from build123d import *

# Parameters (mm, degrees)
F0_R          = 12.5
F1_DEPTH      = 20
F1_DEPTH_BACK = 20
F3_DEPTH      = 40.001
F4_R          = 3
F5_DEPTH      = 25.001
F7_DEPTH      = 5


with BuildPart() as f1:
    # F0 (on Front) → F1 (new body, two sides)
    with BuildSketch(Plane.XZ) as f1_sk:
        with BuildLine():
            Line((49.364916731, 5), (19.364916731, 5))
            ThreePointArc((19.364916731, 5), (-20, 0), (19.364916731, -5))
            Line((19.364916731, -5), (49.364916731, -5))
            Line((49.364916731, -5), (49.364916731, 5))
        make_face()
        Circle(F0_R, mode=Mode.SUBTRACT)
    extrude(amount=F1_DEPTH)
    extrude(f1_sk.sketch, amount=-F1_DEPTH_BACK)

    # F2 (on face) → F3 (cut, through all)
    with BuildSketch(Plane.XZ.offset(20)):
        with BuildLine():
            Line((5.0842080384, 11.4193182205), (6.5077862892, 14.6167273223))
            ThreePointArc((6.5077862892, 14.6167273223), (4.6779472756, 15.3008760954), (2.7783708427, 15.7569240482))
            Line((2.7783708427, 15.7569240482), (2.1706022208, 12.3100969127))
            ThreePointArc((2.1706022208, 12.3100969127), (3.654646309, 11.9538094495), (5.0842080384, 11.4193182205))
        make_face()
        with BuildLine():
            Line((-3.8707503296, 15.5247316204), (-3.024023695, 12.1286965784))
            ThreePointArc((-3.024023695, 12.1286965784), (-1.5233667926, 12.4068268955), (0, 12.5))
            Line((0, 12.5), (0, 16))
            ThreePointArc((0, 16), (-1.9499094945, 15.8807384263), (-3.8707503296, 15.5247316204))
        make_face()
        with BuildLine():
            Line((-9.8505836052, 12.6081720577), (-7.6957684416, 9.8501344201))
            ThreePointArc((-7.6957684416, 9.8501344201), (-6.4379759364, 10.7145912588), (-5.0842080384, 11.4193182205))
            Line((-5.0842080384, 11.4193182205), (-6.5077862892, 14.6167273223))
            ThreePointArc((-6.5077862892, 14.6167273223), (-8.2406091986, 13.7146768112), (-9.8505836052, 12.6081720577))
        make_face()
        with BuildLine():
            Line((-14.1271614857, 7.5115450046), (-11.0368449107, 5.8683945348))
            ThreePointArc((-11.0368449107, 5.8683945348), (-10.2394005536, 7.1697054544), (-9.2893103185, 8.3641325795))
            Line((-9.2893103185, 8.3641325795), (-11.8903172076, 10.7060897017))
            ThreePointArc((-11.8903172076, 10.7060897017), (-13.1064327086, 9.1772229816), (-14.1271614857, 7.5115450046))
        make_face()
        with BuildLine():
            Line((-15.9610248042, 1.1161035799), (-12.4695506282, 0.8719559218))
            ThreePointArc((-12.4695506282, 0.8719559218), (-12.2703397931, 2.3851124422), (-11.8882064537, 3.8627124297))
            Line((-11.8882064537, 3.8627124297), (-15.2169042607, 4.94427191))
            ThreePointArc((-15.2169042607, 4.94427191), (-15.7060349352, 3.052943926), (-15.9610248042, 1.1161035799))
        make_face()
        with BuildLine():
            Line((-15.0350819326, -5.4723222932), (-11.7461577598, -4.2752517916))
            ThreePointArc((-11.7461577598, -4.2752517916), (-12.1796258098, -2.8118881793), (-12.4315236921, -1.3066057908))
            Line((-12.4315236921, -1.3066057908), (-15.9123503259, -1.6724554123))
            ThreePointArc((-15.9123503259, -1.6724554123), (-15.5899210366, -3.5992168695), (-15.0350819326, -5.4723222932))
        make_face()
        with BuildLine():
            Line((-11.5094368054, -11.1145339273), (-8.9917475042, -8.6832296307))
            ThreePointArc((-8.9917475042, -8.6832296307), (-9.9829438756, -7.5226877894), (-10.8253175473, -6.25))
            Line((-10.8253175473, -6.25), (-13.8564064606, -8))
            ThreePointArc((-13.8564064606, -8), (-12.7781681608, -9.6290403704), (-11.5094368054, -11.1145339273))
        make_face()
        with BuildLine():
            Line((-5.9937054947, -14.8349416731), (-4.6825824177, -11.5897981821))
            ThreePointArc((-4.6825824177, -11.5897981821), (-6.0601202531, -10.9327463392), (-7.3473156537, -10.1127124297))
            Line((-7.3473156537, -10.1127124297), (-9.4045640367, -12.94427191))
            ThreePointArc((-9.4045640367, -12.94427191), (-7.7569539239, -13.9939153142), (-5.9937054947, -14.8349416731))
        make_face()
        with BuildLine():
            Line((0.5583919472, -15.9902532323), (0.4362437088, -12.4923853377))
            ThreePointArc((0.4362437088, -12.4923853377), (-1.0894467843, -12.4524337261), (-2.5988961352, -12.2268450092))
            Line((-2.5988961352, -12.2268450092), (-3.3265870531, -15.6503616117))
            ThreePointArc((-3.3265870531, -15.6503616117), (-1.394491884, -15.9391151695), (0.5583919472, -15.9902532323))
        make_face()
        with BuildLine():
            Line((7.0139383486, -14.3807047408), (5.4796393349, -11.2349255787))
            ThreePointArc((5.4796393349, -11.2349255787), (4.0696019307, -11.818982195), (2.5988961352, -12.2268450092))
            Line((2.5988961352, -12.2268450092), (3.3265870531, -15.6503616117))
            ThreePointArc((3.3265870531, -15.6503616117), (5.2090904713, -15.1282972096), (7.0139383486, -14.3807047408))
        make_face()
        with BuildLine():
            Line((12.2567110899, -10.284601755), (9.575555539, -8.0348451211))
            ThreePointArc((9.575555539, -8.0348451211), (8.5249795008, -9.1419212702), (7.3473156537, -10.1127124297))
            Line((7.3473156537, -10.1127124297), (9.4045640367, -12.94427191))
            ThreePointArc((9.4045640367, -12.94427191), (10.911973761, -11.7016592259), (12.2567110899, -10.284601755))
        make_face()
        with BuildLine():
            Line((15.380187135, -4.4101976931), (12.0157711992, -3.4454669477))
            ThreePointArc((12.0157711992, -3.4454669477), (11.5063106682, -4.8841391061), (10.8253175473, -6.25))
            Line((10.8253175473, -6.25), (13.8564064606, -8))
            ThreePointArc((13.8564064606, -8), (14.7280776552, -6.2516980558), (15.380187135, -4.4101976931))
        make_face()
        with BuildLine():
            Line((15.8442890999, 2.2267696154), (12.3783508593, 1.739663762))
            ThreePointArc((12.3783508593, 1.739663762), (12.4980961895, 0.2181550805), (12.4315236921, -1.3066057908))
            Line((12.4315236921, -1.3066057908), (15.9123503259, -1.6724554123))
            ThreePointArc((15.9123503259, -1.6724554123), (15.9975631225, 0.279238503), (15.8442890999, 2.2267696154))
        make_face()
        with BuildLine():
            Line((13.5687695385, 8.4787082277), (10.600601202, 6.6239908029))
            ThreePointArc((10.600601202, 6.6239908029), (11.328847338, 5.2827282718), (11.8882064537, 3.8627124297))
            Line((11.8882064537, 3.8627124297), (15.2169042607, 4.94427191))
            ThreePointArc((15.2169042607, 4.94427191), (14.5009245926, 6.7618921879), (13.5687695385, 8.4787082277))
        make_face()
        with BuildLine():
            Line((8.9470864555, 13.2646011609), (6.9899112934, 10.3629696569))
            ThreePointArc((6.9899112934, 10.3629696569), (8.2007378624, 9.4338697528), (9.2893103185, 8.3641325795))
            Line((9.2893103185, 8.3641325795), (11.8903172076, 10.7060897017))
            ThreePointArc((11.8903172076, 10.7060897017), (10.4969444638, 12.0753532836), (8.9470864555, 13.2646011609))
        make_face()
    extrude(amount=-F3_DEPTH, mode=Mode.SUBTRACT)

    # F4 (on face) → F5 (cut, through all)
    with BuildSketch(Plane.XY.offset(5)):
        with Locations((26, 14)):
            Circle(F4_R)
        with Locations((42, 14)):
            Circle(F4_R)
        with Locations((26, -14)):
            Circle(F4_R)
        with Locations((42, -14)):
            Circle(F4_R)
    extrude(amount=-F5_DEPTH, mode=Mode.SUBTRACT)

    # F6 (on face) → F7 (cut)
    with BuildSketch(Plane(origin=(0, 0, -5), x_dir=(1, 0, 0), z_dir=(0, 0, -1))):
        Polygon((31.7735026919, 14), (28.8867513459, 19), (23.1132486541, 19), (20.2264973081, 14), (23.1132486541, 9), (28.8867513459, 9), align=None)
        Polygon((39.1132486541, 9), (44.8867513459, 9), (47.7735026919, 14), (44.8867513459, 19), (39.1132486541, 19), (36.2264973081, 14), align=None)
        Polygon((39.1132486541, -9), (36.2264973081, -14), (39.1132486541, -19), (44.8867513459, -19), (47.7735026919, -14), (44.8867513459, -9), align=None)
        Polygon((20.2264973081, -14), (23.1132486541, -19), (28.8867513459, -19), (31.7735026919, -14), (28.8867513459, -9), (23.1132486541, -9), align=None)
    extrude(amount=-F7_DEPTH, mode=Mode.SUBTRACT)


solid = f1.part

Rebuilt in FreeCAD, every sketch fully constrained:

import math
import FreeCAD as App
import Part
import Sketcher
from FreeCAD import Vector
Q = App.Units.Quantity


def add_polygon(sketch, points):
    """Adds a closed chain of lines whose ends are joined by coincident constraints."""
    first, n = sketch.GeometryCount, len(points)
    for a, b in zip(points, points[1:] + points[:1]):
        sketch.addGeometry(Part.LineSegment(App.Vector(*a, 0), App.Vector(*b, 0)), False)
    for i in range(n):
        sketch.addConstraint(Sketcher.Constraint("Coincident", first + i, 2, first + (i + 1) % n, 1))

doc = App.newDocument("Part")
body = doc.addObject("PartDesign::Body", "Body")

sketch1 = doc.addObject("Sketcher::SketchObject", "Sketch")
body.addObject(sketch1)
sketch1.AttachmentSupport = (doc.XZ_Plane, [""])
sketch1.MapMode = "FlatFace"
sketch1.addGeometry(Part.LineSegment(Vector(49.364917, 5, 0), Vector(19.364917, 5, 0)), False)
sketch1.addGeometry(Part.ArcOfCircle(Part.Circle(Vector(0, 0, 0), Vector(0, 0, 1), 20), math.radians(14.477512), math.radians(345.522488)), False)
sketch1.addGeometry(Part.LineSegment(Vector(19.364917, -5, 0), Vector(49.364917, -5, 0)), False)
sketch1.addGeometry(Part.LineSegment(Vector(49.364917, -5, 0), Vector(49.364917, 5, 0)), False)
sketch1.addGeometry(Part.Circle(Vector(0, 0, 0), Vector(0, 0, 1), 12.5), False)
sketch1.addConstraint(Sketcher.Constraint("Coincident", 0, 2, 1, 1))
sketch1.addConstraint(Sketcher.Constraint("Coincident", 1, 2, 2, 1))
sketch1.addConstraint(Sketcher.Constraint("Coincident", 2, 2, 3, 1))
sketch1.addConstraint(Sketcher.Constraint("Coincident", 3, 2, 0, 1))
sketch1.addConstraint(Sketcher.Constraint("Horizontal", 0))
sketch1.addConstraint(Sketcher.Constraint("Horizontal", 2))
sketch1.addConstraint(Sketcher.Constraint("Vertical", 3))
sketch1.addConstraint(Sketcher.Constraint("Coincident", 1, 3, -1, 1))
sketch1.addConstraint(Sketcher.Constraint("Coincident", 4, 3, -1, 1))
sketch1.addConstraint(Sketcher.Constraint("Vertical", 0, 2, 1, 2))
sketch1.addConstraint(Sketcher.Constraint("Diameter", 4, Q("25 mm")))
sketch1.addConstraint(Sketcher.Constraint("Radius", 1, Q("20 mm")))
sketch1.addConstraint(Sketcher.Constraint("DistanceX", 0, 2, 0, 1, Q("30 mm")))
sketch1.addConstraint(Sketcher.Constraint("DistanceY", 3, 1, 3, 2, Q("10 mm")))
pad1 = doc.addObject("PartDesign::Pad", "Pad")
body.addObject(pad1)
pad1.Profile = sketch1
pad1.Type = "TwoLengths"
pad1.Length = 20
pad1.Length2 = 20

sketch2 = doc.addObject("Sketcher::SketchObject", "Sketch001")
body.addObject(sketch2)
sketch2.AttachmentSupport = (doc.XZ_Plane, [""])
sketch2.MapMode = "FlatFace"
sketch2.AttachmentOffset = App.Placement(Vector(0, 0, 20), App.Rotation())
sketch2.addGeometry(Part.LineSegment(Vector(5.084208, 11.419318, 0), Vector(6.507786, 14.616727, 0)), False)
sketch2.addGeometry(Part.ArcOfCircle(Part.Circle(Vector(0, 0, 0), Vector(0, 0, 1), 16), math.radians(66), math.radians(80)), False)
sketch2.addGeometry(Part.LineSegment(Vector(2.778371, 15.756924, 0), Vector(2.170602, 12.310097, 0)), False)
sketch2.addGeometry(Part.ArcOfCircle(Part.Circle(Vector(0, 0, 0), Vector(0, 0, 1), 12.5), math.radians(66), math.radians(80)), False)
sketch2.addGeometry(Part.LineSegment(Vector(-3.87075, 15.524732, 0), Vector(-3.024024, 12.128697, 0)), False)
sketch2.addGeometry(Part.ArcOfCircle(Part.Circle(Vector(0, 0, 0), Vector(0, 0, 1), 12.5), math.radians(90), math.radians(104)), False)
sketch2.addGeometry(Part.LineSegment(Vector(0, 12.5, 0), Vector(0, 16, 0)), False)
sketch2.addGeometry(Part.ArcOfCircle(Part.Circle(Vector(0, 0, 0), Vector(0, 0, 1), 16), math.radians(90), math.radians(104)), False)
sketch2.addGeometry(Part.LineSegment(Vector(-9.850584, 12.608172, 0), Vector(-7.695768, 9.850134, 0)), False)
sketch2.addGeometry(Part.ArcOfCircle(Part.Circle(Vector(0, 0, 0), Vector(0, 0, 1), 12.5), math.radians(114), math.radians(128)), False)
sketch2.addGeometry(Part.LineSegment(Vector(-5.084208, 11.419318, 0), Vector(-6.507786, 14.616727, 0)), False)
sketch2.addGeometry(Part.ArcOfCircle(Part.Circle(Vector(0, 0, 0), Vector(0, 0, 1), 16), math.radians(114), math.radians(128)), False)
sketch2.addGeometry(Part.LineSegment(Vector(-14.127161, 7.511545, 0), Vector(-11.036845, 5.868395, 0)), False)
sketch2.addGeometry(Part.ArcOfCircle(Part.Circle(Vector(0, 0, 0), Vector(0, 0, 1), 12.5), math.radians(138), math.radians(152)), False)
sketch2.addGeometry(Part.LineSegment(Vector(-9.28931, 8.364133, 0), Vector(-11.890317, 10.70609, 0)), False)
sketch2.addGeometry(Part.ArcOfCircle(Part.Circle(Vector(0, 0, 0), Vector(0, 0, 1), 16), math.radians(138), math.radians(152)), False)
sketch2.addGeometry(Part.LineSegment(Vector(-15.961025, 1.116104, 0), Vector(-12.469551, 0.871956, 0)), False)
sketch2.addGeometry(Part.ArcOfCircle(Part.Circle(Vector(0, 0, 0), Vector(0, 0, 1), 12.5), math.radians(162), math.radians(176)), False)
sketch2.addGeometry(Part.LineSegment(Vector(-11.888206, 3.862712, 0), Vector(-15.216904, 4.944272, 0)), False)
sketch2.addGeometry(Part.ArcOfCircle(Part.Circle(Vector(0, 0, 0), Vector(0, 0, 1), 16), math.radians(162), math.radians(176)), False)
sketch2.addGeometry(Part.LineSegment(Vector(-15.035082, -5.472322, 0), Vector(-11.746158, -4.275252, 0)), False)
sketch2.addGeometry(Part.ArcOfCircle(Part.Circle(Vector(0, 0, 0), Vector(0, 0, 1), 12.5), math.radians(-174), math.radians(-160)), False)
sketch2.addGeometry(Part.LineSegment(Vector(-12.431524, -1.306606, 0), Vector(-15.91235, -1.672455, 0)), False)
sketch2.addGeometry(Part.ArcOfCircle(Part.Circle(Vector(0, 0, 0), Vector(0, 0, 1), 16), math.radians(-174), math.radians(-160)), False)
sketch2.addGeometry(Part.LineSegment(Vector(-11.509437, -11.114534, 0), Vector(-8.991748, -8.68323, 0)), False)
sketch2.addGeometry(Part.ArcOfCircle(Part.Circle(Vector(0, 0, 0), Vector(0, 0, 1), 12.5), math.radians(-150), math.radians(-136)), False)
sketch2.addGeometry(Part.LineSegment(Vector(-10.825318, -6.25, 0), Vector(-13.856406, -8, 0)), False)
sketch2.addGeometry(Part.ArcOfCircle(Part.Circle(Vector(0, 0, 0), Vector(0, 0, 1), 16), math.radians(-150), math.radians(-136)), False)
sketch2.addGeometry(Part.LineSegment(Vector(-5.993705, -14.834942, 0), Vector(-4.682582, -11.589798, 0)), False)
sketch2.addGeometry(Part.ArcOfCircle(Part.Circle(Vector(0, 0, 0), Vector(0, 0, 1), 12.5), math.radians(-126), math.radians(-112)), False)
sketch2.addGeometry(Part.LineSegment(Vector(-7.347316, -10.112712, 0), Vector(-9.404564, -12.944272, 0)), False)
sketch2.addGeometry(Part.ArcOfCircle(Part.Circle(Vector(0, 0, 0), Vector(0, 0, 1), 16), math.radians(-126), math.radians(-112)), False)
sketch2.addGeometry(Part.LineSegment(Vector(0.558392, -15.990253, 0), Vector(0.436244, -12.492385, 0)), False)
sketch2.addGeometry(Part.ArcOfCircle(Part.Circle(Vector(0, 0, 0), Vector(0, 0, 1), 12.5), math.radians(-102), math.radians(-88)), False)
sketch2.addGeometry(Part.LineSegment(Vector(-2.598896, -12.226845, 0), Vector(-3.326587, -15.650362, 0)), False)
sketch2.addGeometry(Part.ArcOfCircle(Part.Circle(Vector(0, 0, 0), Vector(0, 0, 1), 16), math.radians(-102), math.radians(-88)), False)
sketch2.addGeometry(Part.LineSegment(Vector(7.013938, -14.380705, 0), Vector(5.479639, -11.234926, 0)), False)
sketch2.addGeometry(Part.ArcOfCircle(Part.Circle(Vector(0, 0, 0), Vector(0, 0, 1), 12.5), math.radians(-78), math.radians(-64)), False)
sketch2.addGeometry(Part.LineSegment(Vector(2.598896, -12.226845, 0), Vector(3.326587, -15.650362, 0)), False)
sketch2.addGeometry(Part.ArcOfCircle(Part.Circle(Vector(0, 0, 0), Vector(0, 0, 1), 16), math.radians(-78), math.radians(-64)), False)
sketch2.addGeometry(Part.LineSegment(Vector(12.256711, -10.284602, 0), Vector(9.575556, -8.034845, 0)), False)
sketch2.addGeometry(Part.ArcOfCircle(Part.Circle(Vector(0, 0, 0), Vector(0, 0, 1), 12.5), math.radians(-54), math.radians(-40)), False)
sketch2.addGeometry(Part.LineSegment(Vector(7.347316, -10.112712, 0), Vector(9.404564, -12.944272, 0)), False)
sketch2.addGeometry(Part.ArcOfCircle(Part.Circle(Vector(0, 0, 0), Vector(0, 0, 1), 16), math.radians(-54), math.radians(-40)), False)
sketch2.addGeometry(Part.LineSegment(Vector(15.380187, -4.410198, 0), Vector(12.015771, -3.445467, 0)), False)
sketch2.addGeometry(Part.ArcOfCircle(Part.Circle(Vector(0, 0, 0), Vector(0, 0, 1), 12.5), math.radians(-30), math.radians(-16)), False)
sketch2.addGeometry(Part.LineSegment(Vector(10.825318, -6.25, 0), Vector(13.856406, -8, 0)), False)
sketch2.addGeometry(Part.ArcOfCircle(Part.Circle(Vector(0, 0, 0), Vector(0, 0, 1), 16), math.radians(-30), math.radians(-16)), False)
sketch2.addGeometry(Part.LineSegment(Vector(15.844289, 2.22677, 0), Vector(12.378351, 1.739664, 0)), False)
sketch2.addGeometry(Part.ArcOfCircle(Part.Circle(Vector(0, 0, 0), Vector(0, 0, 1), 12.5), math.radians(-6), math.radians(8)), False)
sketch2.addGeometry(Part.LineSegment(Vector(12.431524, -1.306606, 0), Vector(15.91235, -1.672455, 0)), False)
sketch2.addGeometry(Part.ArcOfCircle(Part.Circle(Vector(0, 0, 0), Vector(0, 0, 1), 16), math.radians(-6), math.radians(8)), False)
sketch2.addGeometry(Part.LineSegment(Vector(13.56877, 8.478708, 0), Vector(10.600601, 6.623991, 0)), False)
sketch2.addGeometry(Part.ArcOfCircle(Part.Circle(Vector(0, 0, 0), Vector(0, 0, 1), 12.5), math.radians(18), math.radians(32)), False)
sketch2.addGeometry(Part.LineSegment(Vector(11.888206, 3.862712, 0), Vector(15.216904, 4.944272, 0)), False)
sketch2.addGeometry(Part.ArcOfCircle(Part.Circle(Vector(0, 0, 0), Vector(0, 0, 1), 16), math.radians(18), math.radians(32)), False)
sketch2.addGeometry(Part.LineSegment(Vector(8.947086, 13.264601, 0), Vector(6.989911, 10.36297, 0)), False)
sketch2.addGeometry(Part.ArcOfCircle(Part.Circle(Vector(0, 0, 0), Vector(0, 0, 1), 12.5), math.radians(42), math.radians(56)), False)
sketch2.addGeometry(Part.LineSegment(Vector(9.28931, 8.364133, 0), Vector(11.890317, 10.70609, 0)), False)
sketch2.addGeometry(Part.ArcOfCircle(Part.Circle(Vector(0, 0, 0), Vector(0, 0, 1), 16), math.radians(42), math.radians(56)), False)
sketch2.addConstraint(Sketcher.Constraint("Coincident", 0, 2, 1, 1))
sketch2.addConstraint(Sketcher.Constraint("Coincident", 1, 2, 2, 1))
sketch2.addConstraint(Sketcher.Constraint("Coincident", 2, 2, 3, 2))
sketch2.addConstraint(Sketcher.Constraint("Coincident", 3, 1, 0, 1))
sketch2.addConstraint(Sketcher.Constraint("Coincident", 4, 2, 5, 2))
sketch2.addConstraint(Sketcher.Constraint("Coincident", 5, 1, 6, 1))
sketch2.addConstraint(Sketcher.Constraint("Coincident", 6, 2, 7, 1))
sketch2.addConstraint(Sketcher.Constraint("Coincident", 7, 2, 4, 1))
sketch2.addConstraint(Sketcher.Constraint("Coincident", 8, 2, 9, 2))
sketch2.addConstraint(Sketcher.Constraint("Coincident", 9, 1, 10, 1))
sketch2.addConstraint(Sketcher.Constraint("Coincident", 10, 2, 11, 1))
sketch2.addConstraint(Sketcher.Constraint("Coincident", 11, 2, 8, 1))
sketch2.addConstraint(Sketcher.Constraint("Coincident", 12, 2, 13, 2))
sketch2.addConstraint(Sketcher.Constraint("Coincident", 13, 1, 14, 1))
sketch2.addConstraint(Sketcher.Constraint("Coincident", 14, 2, 15, 1))
sketch2.addConstraint(Sketcher.Constraint("Coincident", 15, 2, 12, 1))
sketch2.addConstraint(Sketcher.Constraint("Coincident", 16, 2, 17, 2))
sketch2.addConstraint(Sketcher.Constraint("Coincident", 17, 1, 18, 1))
sketch2.addConstraint(Sketcher.Constraint("Coincident", 18, 2, 19, 1))
sketch2.addConstraint(Sketcher.Constraint("Coincident", 19, 2, 16, 1))
sketch2.addConstraint(Sketcher.Constraint("Coincident", 20, 2, 21, 2))
sketch2.addConstraint(Sketcher.Constraint("Coincident", 21, 1, 22, 1))
sketch2.addConstraint(Sketcher.Constraint("Coincident", 22, 2, 23, 1))
sketch2.addConstraint(Sketcher.Constraint("Coincident", 23, 2, 20, 1))
sketch2.addConstraint(Sketcher.Constraint("Coincident", 24, 2, 25, 2))
sketch2.addConstraint(Sketcher.Constraint("Coincident", 25, 1, 26, 1))
sketch2.addConstraint(Sketcher.Constraint("Coincident", 26, 2, 27, 1))
sketch2.addConstraint(Sketcher.Constraint("Coincident", 27, 2, 24, 1))
sketch2.addConstraint(Sketcher.Constraint("Coincident", 28, 2, 29, 2))
sketch2.addConstraint(Sketcher.Constraint("Coincident", 29, 1, 30, 1))
sketch2.addConstraint(Sketcher.Constraint("Coincident", 30, 2, 31, 1))
sketch2.addConstraint(Sketcher.Constraint("Coincident", 31, 2, 28, 1))
sketch2.addConstraint(Sketcher.Constraint("Coincident", 32, 2, 33, 2))
sketch2.addConstraint(Sketcher.Constraint("Coincident", 33, 1, 34, 1))
sketch2.addConstraint(Sketcher.Constraint("Coincident", 34, 2, 35, 1))
sketch2.addConstraint(Sketcher.Constraint("Coincident", 35, 2, 32, 1))
sketch2.addConstraint(Sketcher.Constraint("Coincident", 36, 2, 37, 2))
sketch2.addConstraint(Sketcher.Constraint("Coincident", 37, 1, 38, 1))
sketch2.addConstraint(Sketcher.Constraint("Coincident", 38, 2, 39, 1))
sketch2.addConstraint(Sketcher.Constraint("Coincident", 39, 2, 36, 1))
sketch2.addConstraint(Sketcher.Constraint("Coincident", 40, 2, 41, 2))
sketch2.addConstraint(Sketcher.Constraint("Coincident", 41, 1, 42, 1))
sketch2.addConstraint(Sketcher.Constraint("Coincident", 42, 2, 43, 1))
sketch2.addConstraint(Sketcher.Constraint("Coincident", 43, 2, 40, 1))
sketch2.addConstraint(Sketcher.Constraint("Coincident", 44, 2, 45, 2))
sketch2.addConstraint(Sketcher.Constraint("Coincident", 45, 1, 46, 1))
sketch2.addConstraint(Sketcher.Constraint("Coincident", 46, 2, 47, 1))
sketch2.addConstraint(Sketcher.Constraint("Coincident", 47, 2, 44, 1))
sketch2.addConstraint(Sketcher.Constraint("Coincident", 48, 2, 49, 2))
sketch2.addConstraint(Sketcher.Constraint("Coincident", 49, 1, 50, 1))
sketch2.addConstraint(Sketcher.Constraint("Coincident", 50, 2, 51, 1))
sketch2.addConstraint(Sketcher.Constraint("Coincident", 51, 2, 48, 1))
sketch2.addConstraint(Sketcher.Constraint("Coincident", 52, 2, 53, 2))
sketch2.addConstraint(Sketcher.Constraint("Coincident", 53, 1, 54, 1))
sketch2.addConstraint(Sketcher.Constraint("Coincident", 54, 2, 55, 1))
sketch2.addConstraint(Sketcher.Constraint("Coincident", 55, 2, 52, 1))
sketch2.addConstraint(Sketcher.Constraint("Coincident", 56, 2, 57, 2))
sketch2.addConstraint(Sketcher.Constraint("Coincident", 57, 1, 58, 1))
sketch2.addConstraint(Sketcher.Constraint("Coincident", 58, 2, 59, 1))
sketch2.addConstraint(Sketcher.Constraint("Coincident", 59, 2, 56, 1))
sketch2.addConstraint(Sketcher.Constraint("Vertical", 6))
sketch2.addConstraint(Sketcher.Constraint("Coincident", 1, 3, -1, 1))
sketch2.addConstraint(Sketcher.Constraint("Coincident", 3, 3, -1, 1))
sketch2.addConstraint(Sketcher.Constraint("Coincident", 5, 3, -1, 1))
sketch2.addConstraint(Sketcher.Constraint("Coincident", 7, 3, -1, 1))
sketch2.addConstraint(Sketcher.Constraint("Coincident", 9, 3, -1, 1))
sketch2.addConstraint(Sketcher.Constraint("Coincident", 11, 3, -1, 1))
sketch2.addConstraint(Sketcher.Constraint("Coincident", 13, 3, -1, 1))
sketch2.addConstraint(Sketcher.Constraint("Coincident", 15, 3, -1, 1))
sketch2.addConstraint(Sketcher.Constraint("Coincident", 17, 3, -1, 1))
sketch2.addConstraint(Sketcher.Constraint("Coincident", 19, 3, -1, 1))
sketch2.addConstraint(Sketcher.Constraint("Coincident", 21, 3, -1, 1))
sketch2.addConstraint(Sketcher.Constraint("Coincident", 23, 3, -1, 1))
sketch2.addConstraint(Sketcher.Constraint("Coincident", 25, 3, -1, 1))
sketch2.addConstraint(Sketcher.Constraint("Coincident", 27, 3, -1, 1))
sketch2.addConstraint(Sketcher.Constraint("Coincident", 29, 3, -1, 1))
sketch2.addConstraint(Sketcher.Constraint("Coincident", 31, 3, -1, 1))
sketch2.addConstraint(Sketcher.Constraint("Coincident", 33, 3, -1, 1))
sketch2.addConstraint(Sketcher.Constraint("Coincident", 35, 3, -1, 1))
sketch2.addConstraint(Sketcher.Constraint("Coincident", 37, 3, -1, 1))
sketch2.addConstraint(Sketcher.Constraint("Coincident", 39, 3, -1, 1))
sketch2.addConstraint(Sketcher.Constraint("Coincident", 41, 3, -1, 1))
sketch2.addConstraint(Sketcher.Constraint("Coincident", 43, 3, -1, 1))
sketch2.addConstraint(Sketcher.Constraint("Coincident", 45, 3, -1, 1))
sketch2.addConstraint(Sketcher.Constraint("Coincident", 47, 3, -1, 1))
sketch2.addConstraint(Sketcher.Constraint("Coincident", 49, 3, -1, 1))
sketch2.addConstraint(Sketcher.Constraint("Coincident", 51, 3, -1, 1))
sketch2.addConstraint(Sketcher.Constraint("Coincident", 53, 3, -1, 1))
sketch2.addConstraint(Sketcher.Constraint("Coincident", 55, 3, -1, 1))
sketch2.addConstraint(Sketcher.Constraint("Coincident", 57, 3, -1, 1))
sketch2.addConstraint(Sketcher.Constraint("Coincident", 59, 3, -1, 1))
sketch2.addConstraint(Sketcher.Constraint("Equal", 3, 5))
sketch2.addConstraint(Sketcher.Constraint("Equal", 1, 7))
sketch2.addConstraint(Sketcher.Constraint("Equal", 5, 9))
sketch2.addConstraint(Sketcher.Constraint("Equal", 7, 11))
sketch2.addConstraint(Sketcher.Constraint("Equal", 9, 13))
sketch2.addConstraint(Sketcher.Constraint("Equal", 11, 15))
sketch2.addConstraint(Sketcher.Constraint("Equal", 13, 17))
sketch2.addConstraint(Sketcher.Constraint("Equal", 15, 19))
sketch2.addConstraint(Sketcher.Constraint("Equal", 17, 21))
sketch2.addConstraint(Sketcher.Constraint("Equal", 19, 23))
sketch2.addConstraint(Sketcher.Constraint("Equal", 21, 25))
sketch2.addConstraint(Sketcher.Constraint("Equal", 23, 27))
sketch2.addConstraint(Sketcher.Constraint("Equal", 25, 29))
sketch2.addConstraint(Sketcher.Constraint("Equal", 27, 31))
sketch2.addConstraint(Sketcher.Constraint("Equal", 29, 33))
sketch2.addConstraint(Sketcher.Constraint("Equal", 31, 35))
sketch2.addConstraint(Sketcher.Constraint("Equal", 33, 37))
sketch2.addConstraint(Sketcher.Constraint("Equal", 35, 39))
sketch2.addConstraint(Sketcher.Constraint("Equal", 37, 41))
sketch2.addConstraint(Sketcher.Constraint("Equal", 39, 43))
sketch2.addConstraint(Sketcher.Constraint("Equal", 41, 45))
sketch2.addConstraint(Sketcher.Constraint("Equal", 43, 47))
sketch2.addConstraint(Sketcher.Constraint("Equal", 45, 49))
sketch2.addConstraint(Sketcher.Constraint("Equal", 47, 51))
sketch2.addConstraint(Sketcher.Constraint("Equal", 49, 53))
sketch2.addConstraint(Sketcher.Constraint("Equal", 51, 55))
sketch2.addConstraint(Sketcher.Constraint("Equal", 53, 57))
sketch2.addConstraint(Sketcher.Constraint("Equal", 55, 59))
sketch2.addConstraint(Sketcher.Constraint("PointOnObject", 5, 1, -2))
sketch2.addConstraint(Sketcher.Constraint("Horizontal", 3, 1, 9, 1))
sketch2.addConstraint(Sketcher.Constraint("Horizontal", 0, 2, 10, 2))
sketch2.addConstraint(Sketcher.Constraint("Horizontal", 33, 1, 37, 1))
sketch2.addConstraint(Sketcher.Constraint("Horizontal", 34, 2, 38, 2))
sketch2.addConstraint(Sketcher.Constraint("Horizontal", 29, 1, 41, 1))
sketch2.addConstraint(Sketcher.Constraint("Horizontal", 30, 2, 42, 2))
sketch2.addConstraint(Sketcher.Constraint("Horizontal", 25, 1, 45, 1))
sketch2.addConstraint(Sketcher.Constraint("Horizontal", 26, 2, 46, 2))
sketch2.addConstraint(Sketcher.Constraint("Horizontal", 21, 1, 49, 1))
sketch2.addConstraint(Sketcher.Constraint("Horizontal", 22, 2, 50, 2))
sketch2.addConstraint(Sketcher.Constraint("Horizontal", 17, 1, 53, 1))
sketch2.addConstraint(Sketcher.Constraint("Horizontal", 18, 2, 54, 2))
sketch2.addConstraint(Sketcher.Constraint("Horizontal", 13, 1, 57, 1))
sketch2.addConstraint(Sketcher.Constraint("Horizontal", 14, 2, 58, 2))
sketch2.addConstraint(Sketcher.Constraint("Radius", 1, Q("16 mm")))
sketch2.addConstraint(Sketcher.Constraint("Radius", 3, Q("12.5 mm")))
sketch2.addConstraint(Sketcher.Constraint("Angle", 0, Q("66 deg")))
sketch2.addConstraint(Sketcher.Constraint("Angle", 2, Q("-100 deg")))
sketch2.addConstraint(Sketcher.Constraint("Angle", 4, Q("-76 deg")))
sketch2.addConstraint(Sketcher.Constraint("Angle", 8, Q("-52 deg")))
sketch2.addConstraint(Sketcher.Constraint("Angle", 12, Q("-28 deg")))
sketch2.addConstraint(Sketcher.Constraint("Angle", 14, Q("138 deg")))
sketch2.addConstraint(Sketcher.Constraint("Angle", 16, Q("-4 deg")))
sketch2.addConstraint(Sketcher.Constraint("Angle", 18, Q("162 deg")))
sketch2.addConstraint(Sketcher.Constraint("Angle", 20, Q("20 deg")))
sketch2.addConstraint(Sketcher.Constraint("Angle", 22, Q("-174 deg")))
sketch2.addConstraint(Sketcher.Constraint("Angle", 24, Q("44 deg")))
sketch2.addConstraint(Sketcher.Constraint("Angle", 26, Q("-150 deg")))
sketch2.addConstraint(Sketcher.Constraint("Angle", 28, Q("68 deg")))
sketch2.addConstraint(Sketcher.Constraint("Angle", 30, Q("-126 deg")))
sketch2.addConstraint(Sketcher.Constraint("Angle", 32, Q("92 deg")))
sketch2.addConstraint(Sketcher.Constraint("Angle", 34, Q("-102 deg")))
sketch2.addConstraint(Sketcher.Constraint("Angle", 36, Q("116 deg")))
sketch2.addConstraint(Sketcher.Constraint("Angle", 40, Q("140 deg")))
sketch2.addConstraint(Sketcher.Constraint("Angle", 44, Q("164 deg")))
sketch2.addConstraint(Sketcher.Constraint("Angle", 48, Q("-172 deg")))
sketch2.addConstraint(Sketcher.Constraint("Angle", 52, Q("-148 deg")))
sketch2.addConstraint(Sketcher.Constraint("Angle", 56, Q("-124 deg")))
sketch2.addConstraint(Sketcher.Constraint("DistanceY", 26, 2, -1, 1, Q("8 mm")))
sketch2.addConstraint(Sketcher.Constraint("DistanceY", 28, 2, -1, 1, Q("11.589798 mm")))
sketch2.addConstraint(Sketcher.Constraint("DistanceY", 43, 2, -1, 1, Q("10.284602 mm")))
sketch2.addConstraint(Sketcher.Constraint("DistanceX", -1, 1, 52, 2, Q("10.600601 mm")))
sketch2.addConstraint(Sketcher.Constraint("DistanceY", -1, 1, 59, 2, Q("13.264601 mm")))
sketch2.addConstraint(Sketcher.Constraint("DistanceX", -1, 1, 1, 2, Q("2.778371 mm")))
sketch2.addConstraint(Sketcher.Constraint("DistanceX", -1, 1, 3, 1, Q("5.084208 mm")))
sketch2.addConstraint(Sketcher.Constraint("DistanceX", 7, 2, -1, 1, Q("3.87075 mm")))
sketch2.addConstraint(Sketcher.Constraint("DistanceX", 8, 2, -1, 1, Q("7.695768 mm")))
sketch2.addConstraint(Sketcher.Constraint("DistanceX", 13, 1, -1, 1, Q("9.28931 mm")))
sketch2.addConstraint(Sketcher.Constraint("DistanceX", 15, 2, -1, 1, Q("14.127161 mm")))
sketch2.addConstraint(Sketcher.Constraint("DistanceX", 16, 2, -1, 1, Q("12.469551 mm")))
sketch2.addConstraint(Sketcher.Constraint("DistanceY", -1, 1, 18, 2, Q("4.944272 mm")))
sketch2.addConstraint(Sketcher.Constraint("DistanceY", 20, 2, -1, 1, Q("4.275252 mm")))
sketch2.addConstraint(Sketcher.Constraint("DistanceX", 22, 2, -1, 1, Q("15.91235 mm")))
sketch2.addConstraint(Sketcher.Constraint("DistanceY", 24, 2, -1, 1, Q("8.68323 mm")))
sketch2.addConstraint(Sketcher.Constraint("DistanceY", 30, 2, -1, 1, Q("12.944272 mm")))
sketch2.addConstraint(Sketcher.Constraint("DistanceY", 34, 2, -1, 1, Q("15.650362 mm")))
sketch2.addConstraint(Sketcher.Constraint("DistanceX", -1, 1, 35, 2, Q("0.558392 mm")))
sketch2.addConstraint(Sketcher.Constraint("DistanceX", -1, 1, 36, 2, Q("5.479639 mm")))
sketch2.addConstraint(Sketcher.Constraint("DistanceX", -1, 1, 44, 2, Q("12.015771 mm")))
sketch2.addConstraint(Sketcher.Constraint("DistanceX", -1, 1, 48, 2, Q("12.378351 mm")))
pocket1 = doc.addObject("PartDesign::Pocket", "Pocket")
body.addObject(pocket1)
pocket1.Profile = sketch2
pocket1.Type = "ThroughAll"

sketch3 = doc.addObject("Sketcher::SketchObject", "Sketch002")
body.addObject(sketch3)
sketch3.AttachmentSupport = (doc.XY_Plane, [""])
sketch3.MapMode = "FlatFace"
sketch3.AttachmentOffset = App.Placement(Vector(0, 0, 5), App.Rotation())
sketch3.addGeometry(Part.Circle(Vector(26, 14, 0), Vector(0, 0, 1), 3), False)
sketch3.addGeometry(Part.Circle(Vector(42, 14, 0), Vector(0, 0, 1), 3), False)
sketch3.addGeometry(Part.Circle(Vector(26, -14, 0), Vector(0, 0, 1), 3), False)
sketch3.addGeometry(Part.Circle(Vector(42, -14, 0), Vector(0, 0, 1), 3), False)
sketch3.addConstraint(Sketcher.Constraint("Equal", 0, 1))
sketch3.addConstraint(Sketcher.Constraint("Equal", 1, 2))
sketch3.addConstraint(Sketcher.Constraint("Equal", 2, 3))
sketch3.addConstraint(Sketcher.Constraint("Symmetric", 0, 3, 2, 3, -1))
sketch3.addConstraint(Sketcher.Constraint("Symmetric", 1, 3, 3, 3, -1))
sketch3.addConstraint(Sketcher.Constraint("Horizontal", 0, 3, 1, 3))
sketch3.addConstraint(Sketcher.Constraint("Diameter", 0, Q("6 mm")))
sketch3.addConstraint(Sketcher.Constraint("DistanceX", -1, 1, 0, 3, Q("26 mm")))
sketch3.addConstraint(Sketcher.Constraint("DistanceY", -1, 1, 0, 3, Q("14 mm")))
sketch3.addConstraint(Sketcher.Constraint("DistanceX", -1, 1, 1, 3, Q("42 mm")))
pocket2 = doc.addObject("PartDesign::Pocket", "Pocket001")
body.addObject(pocket2)
pocket2.Profile = sketch3
pocket2.Type = "ThroughAll"

sketch4 = doc.addObject("Sketcher::SketchObject", "Sketch003")
body.addObject(sketch4)
sketch4.AttachmentSupport = (doc.XY_Plane, [""])
sketch4.MapMode = "FlatFace"
sketch4.AttachmentOffset = App.Placement(Vector(0, 0, -5), App.Rotation())
add_polygon(sketch4, [(31.773503, -14), (28.886751, -19), (23.113249, -19), (20.226497, -14), (23.113249, -9), (28.886751, -9)])
add_polygon(sketch4, [(39.113249, -9), (44.886751, -9), (47.773503, -14), (44.886751, -19), (39.113249, -19), (36.226497, -14)])
add_polygon(sketch4, [(39.113249, 9), (36.226497, 14), (39.113249, 19), (44.886751, 19), (47.773503, 14), (44.886751, 9)])
add_polygon(sketch4, [(20.226497, 14), (23.113249, 19), (28.886751, 19), (31.773503, 14), (28.886751, 9), (23.113249, 9)])
sketch4.addConstraint(Sketcher.Constraint("Horizontal", 1))
sketch4.addConstraint(Sketcher.Constraint("Horizontal", 4))
sketch4.addConstraint(Sketcher.Constraint("Horizontal", 6))
sketch4.addConstraint(Sketcher.Constraint("Horizontal", 9))
sketch4.addConstraint(Sketcher.Constraint("Horizontal", 14))
sketch4.addConstraint(Sketcher.Constraint("Horizontal", 17))
sketch4.addConstraint(Sketcher.Constraint("Horizontal", 19))
sketch4.addConstraint(Sketcher.Constraint("Horizontal", 22))
sketch4.addConstraint(Sketcher.Constraint("Symmetric", 10, 2, 12, 2, -1))
sketch4.addConstraint(Sketcher.Constraint("Symmetric", 9, 2, 13, 2, -1))
sketch4.addConstraint(Sketcher.Constraint("Symmetric", 7, 2, 15, 2, -1))
sketch4.addConstraint(Sketcher.Constraint("Symmetric", 6, 2, 16, 2, -1))
sketch4.addConstraint(Sketcher.Constraint("Symmetric", 1, 2, 18, 2, -1))
sketch4.addConstraint(Sketcher.Constraint("Symmetric", 5, 2, 20, 2, -1))
sketch4.addConstraint(Sketcher.Constraint("Symmetric", 4, 2, 21, 2, -1))
sketch4.addConstraint(Sketcher.Constraint("Symmetric", 2, 2, 23, 2, -1))
sketch4.addConstraint(Sketcher.Constraint("Parallel", 0, 3))
sketch4.addConstraint(Sketcher.Constraint("Parallel", 2, 5))
sketch4.addConstraint(Sketcher.Constraint("Parallel", 5, 7))
sketch4.addConstraint(Sketcher.Constraint("Parallel", 3, 8))
sketch4.addConstraint(Sketcher.Constraint("Parallel", 7, 10))
sketch4.addConstraint(Sketcher.Constraint("Parallel", 8, 11))
sketch4.addConstraint(Sketcher.Constraint("Parallel", 10, 12))
sketch4.addConstraint(Sketcher.Constraint("Parallel", 11, 13))
sketch4.addConstraint(Sketcher.Constraint("Parallel", 12, 15))
sketch4.addConstraint(Sketcher.Constraint("Parallel", 15, 20))
sketch4.addConstraint(Sketcher.Constraint("Parallel", 20, 23))
sketch4.addConstraint(Sketcher.Constraint("Horizontal", 2, 2, 5, 2))
sketch4.addConstraint(Sketcher.Constraint("Horizontal", 4, 2, 6, 2))
sketch4.addConstraint(Sketcher.Constraint("Horizontal", 5, 2, 7, 2))
sketch4.addConstraint(Sketcher.Constraint("Horizontal", 1, 2, 8, 2))
sketch4.addConstraint(Sketcher.Constraint("Horizontal", 7, 2, 10, 2))
sketch4.addConstraint(Sketcher.Constraint("Vertical", 1, 2, 3, 2))
sketch4.addConstraint(Sketcher.Constraint("Equal", 4, 6))
sketch4.addConstraint(Sketcher.Constraint("Angle", 0, Q("-120 deg")))
sketch4.addConstraint(Sketcher.Constraint("DistanceY", 0, 2, -1, 1, Q("19 mm")))
sketch4.addConstraint(Sketcher.Constraint("DistanceY", 2, 2, -1, 1, Q("14 mm")))
sketch4.addConstraint(Sketcher.Constraint("DistanceX", 4, 2, 6, 2, Q("16 mm")))
sketch4.addConstraint(Sketcher.Constraint("DistanceX", 1, 2, 1, 1, Q("5.773503 mm")))
sketch4.addConstraint(Sketcher.Constraint("DistanceX", -1, 1, 0, 2, Q("28.886751 mm")))
pocket3 = doc.addObject("PartDesign::Pocket", "Pocket002")
body.addObject(pocket3)
pocket3.Profile = sketch4
pocket3.Length = 5
pocket3.Reversed = True

doc.recompute()
